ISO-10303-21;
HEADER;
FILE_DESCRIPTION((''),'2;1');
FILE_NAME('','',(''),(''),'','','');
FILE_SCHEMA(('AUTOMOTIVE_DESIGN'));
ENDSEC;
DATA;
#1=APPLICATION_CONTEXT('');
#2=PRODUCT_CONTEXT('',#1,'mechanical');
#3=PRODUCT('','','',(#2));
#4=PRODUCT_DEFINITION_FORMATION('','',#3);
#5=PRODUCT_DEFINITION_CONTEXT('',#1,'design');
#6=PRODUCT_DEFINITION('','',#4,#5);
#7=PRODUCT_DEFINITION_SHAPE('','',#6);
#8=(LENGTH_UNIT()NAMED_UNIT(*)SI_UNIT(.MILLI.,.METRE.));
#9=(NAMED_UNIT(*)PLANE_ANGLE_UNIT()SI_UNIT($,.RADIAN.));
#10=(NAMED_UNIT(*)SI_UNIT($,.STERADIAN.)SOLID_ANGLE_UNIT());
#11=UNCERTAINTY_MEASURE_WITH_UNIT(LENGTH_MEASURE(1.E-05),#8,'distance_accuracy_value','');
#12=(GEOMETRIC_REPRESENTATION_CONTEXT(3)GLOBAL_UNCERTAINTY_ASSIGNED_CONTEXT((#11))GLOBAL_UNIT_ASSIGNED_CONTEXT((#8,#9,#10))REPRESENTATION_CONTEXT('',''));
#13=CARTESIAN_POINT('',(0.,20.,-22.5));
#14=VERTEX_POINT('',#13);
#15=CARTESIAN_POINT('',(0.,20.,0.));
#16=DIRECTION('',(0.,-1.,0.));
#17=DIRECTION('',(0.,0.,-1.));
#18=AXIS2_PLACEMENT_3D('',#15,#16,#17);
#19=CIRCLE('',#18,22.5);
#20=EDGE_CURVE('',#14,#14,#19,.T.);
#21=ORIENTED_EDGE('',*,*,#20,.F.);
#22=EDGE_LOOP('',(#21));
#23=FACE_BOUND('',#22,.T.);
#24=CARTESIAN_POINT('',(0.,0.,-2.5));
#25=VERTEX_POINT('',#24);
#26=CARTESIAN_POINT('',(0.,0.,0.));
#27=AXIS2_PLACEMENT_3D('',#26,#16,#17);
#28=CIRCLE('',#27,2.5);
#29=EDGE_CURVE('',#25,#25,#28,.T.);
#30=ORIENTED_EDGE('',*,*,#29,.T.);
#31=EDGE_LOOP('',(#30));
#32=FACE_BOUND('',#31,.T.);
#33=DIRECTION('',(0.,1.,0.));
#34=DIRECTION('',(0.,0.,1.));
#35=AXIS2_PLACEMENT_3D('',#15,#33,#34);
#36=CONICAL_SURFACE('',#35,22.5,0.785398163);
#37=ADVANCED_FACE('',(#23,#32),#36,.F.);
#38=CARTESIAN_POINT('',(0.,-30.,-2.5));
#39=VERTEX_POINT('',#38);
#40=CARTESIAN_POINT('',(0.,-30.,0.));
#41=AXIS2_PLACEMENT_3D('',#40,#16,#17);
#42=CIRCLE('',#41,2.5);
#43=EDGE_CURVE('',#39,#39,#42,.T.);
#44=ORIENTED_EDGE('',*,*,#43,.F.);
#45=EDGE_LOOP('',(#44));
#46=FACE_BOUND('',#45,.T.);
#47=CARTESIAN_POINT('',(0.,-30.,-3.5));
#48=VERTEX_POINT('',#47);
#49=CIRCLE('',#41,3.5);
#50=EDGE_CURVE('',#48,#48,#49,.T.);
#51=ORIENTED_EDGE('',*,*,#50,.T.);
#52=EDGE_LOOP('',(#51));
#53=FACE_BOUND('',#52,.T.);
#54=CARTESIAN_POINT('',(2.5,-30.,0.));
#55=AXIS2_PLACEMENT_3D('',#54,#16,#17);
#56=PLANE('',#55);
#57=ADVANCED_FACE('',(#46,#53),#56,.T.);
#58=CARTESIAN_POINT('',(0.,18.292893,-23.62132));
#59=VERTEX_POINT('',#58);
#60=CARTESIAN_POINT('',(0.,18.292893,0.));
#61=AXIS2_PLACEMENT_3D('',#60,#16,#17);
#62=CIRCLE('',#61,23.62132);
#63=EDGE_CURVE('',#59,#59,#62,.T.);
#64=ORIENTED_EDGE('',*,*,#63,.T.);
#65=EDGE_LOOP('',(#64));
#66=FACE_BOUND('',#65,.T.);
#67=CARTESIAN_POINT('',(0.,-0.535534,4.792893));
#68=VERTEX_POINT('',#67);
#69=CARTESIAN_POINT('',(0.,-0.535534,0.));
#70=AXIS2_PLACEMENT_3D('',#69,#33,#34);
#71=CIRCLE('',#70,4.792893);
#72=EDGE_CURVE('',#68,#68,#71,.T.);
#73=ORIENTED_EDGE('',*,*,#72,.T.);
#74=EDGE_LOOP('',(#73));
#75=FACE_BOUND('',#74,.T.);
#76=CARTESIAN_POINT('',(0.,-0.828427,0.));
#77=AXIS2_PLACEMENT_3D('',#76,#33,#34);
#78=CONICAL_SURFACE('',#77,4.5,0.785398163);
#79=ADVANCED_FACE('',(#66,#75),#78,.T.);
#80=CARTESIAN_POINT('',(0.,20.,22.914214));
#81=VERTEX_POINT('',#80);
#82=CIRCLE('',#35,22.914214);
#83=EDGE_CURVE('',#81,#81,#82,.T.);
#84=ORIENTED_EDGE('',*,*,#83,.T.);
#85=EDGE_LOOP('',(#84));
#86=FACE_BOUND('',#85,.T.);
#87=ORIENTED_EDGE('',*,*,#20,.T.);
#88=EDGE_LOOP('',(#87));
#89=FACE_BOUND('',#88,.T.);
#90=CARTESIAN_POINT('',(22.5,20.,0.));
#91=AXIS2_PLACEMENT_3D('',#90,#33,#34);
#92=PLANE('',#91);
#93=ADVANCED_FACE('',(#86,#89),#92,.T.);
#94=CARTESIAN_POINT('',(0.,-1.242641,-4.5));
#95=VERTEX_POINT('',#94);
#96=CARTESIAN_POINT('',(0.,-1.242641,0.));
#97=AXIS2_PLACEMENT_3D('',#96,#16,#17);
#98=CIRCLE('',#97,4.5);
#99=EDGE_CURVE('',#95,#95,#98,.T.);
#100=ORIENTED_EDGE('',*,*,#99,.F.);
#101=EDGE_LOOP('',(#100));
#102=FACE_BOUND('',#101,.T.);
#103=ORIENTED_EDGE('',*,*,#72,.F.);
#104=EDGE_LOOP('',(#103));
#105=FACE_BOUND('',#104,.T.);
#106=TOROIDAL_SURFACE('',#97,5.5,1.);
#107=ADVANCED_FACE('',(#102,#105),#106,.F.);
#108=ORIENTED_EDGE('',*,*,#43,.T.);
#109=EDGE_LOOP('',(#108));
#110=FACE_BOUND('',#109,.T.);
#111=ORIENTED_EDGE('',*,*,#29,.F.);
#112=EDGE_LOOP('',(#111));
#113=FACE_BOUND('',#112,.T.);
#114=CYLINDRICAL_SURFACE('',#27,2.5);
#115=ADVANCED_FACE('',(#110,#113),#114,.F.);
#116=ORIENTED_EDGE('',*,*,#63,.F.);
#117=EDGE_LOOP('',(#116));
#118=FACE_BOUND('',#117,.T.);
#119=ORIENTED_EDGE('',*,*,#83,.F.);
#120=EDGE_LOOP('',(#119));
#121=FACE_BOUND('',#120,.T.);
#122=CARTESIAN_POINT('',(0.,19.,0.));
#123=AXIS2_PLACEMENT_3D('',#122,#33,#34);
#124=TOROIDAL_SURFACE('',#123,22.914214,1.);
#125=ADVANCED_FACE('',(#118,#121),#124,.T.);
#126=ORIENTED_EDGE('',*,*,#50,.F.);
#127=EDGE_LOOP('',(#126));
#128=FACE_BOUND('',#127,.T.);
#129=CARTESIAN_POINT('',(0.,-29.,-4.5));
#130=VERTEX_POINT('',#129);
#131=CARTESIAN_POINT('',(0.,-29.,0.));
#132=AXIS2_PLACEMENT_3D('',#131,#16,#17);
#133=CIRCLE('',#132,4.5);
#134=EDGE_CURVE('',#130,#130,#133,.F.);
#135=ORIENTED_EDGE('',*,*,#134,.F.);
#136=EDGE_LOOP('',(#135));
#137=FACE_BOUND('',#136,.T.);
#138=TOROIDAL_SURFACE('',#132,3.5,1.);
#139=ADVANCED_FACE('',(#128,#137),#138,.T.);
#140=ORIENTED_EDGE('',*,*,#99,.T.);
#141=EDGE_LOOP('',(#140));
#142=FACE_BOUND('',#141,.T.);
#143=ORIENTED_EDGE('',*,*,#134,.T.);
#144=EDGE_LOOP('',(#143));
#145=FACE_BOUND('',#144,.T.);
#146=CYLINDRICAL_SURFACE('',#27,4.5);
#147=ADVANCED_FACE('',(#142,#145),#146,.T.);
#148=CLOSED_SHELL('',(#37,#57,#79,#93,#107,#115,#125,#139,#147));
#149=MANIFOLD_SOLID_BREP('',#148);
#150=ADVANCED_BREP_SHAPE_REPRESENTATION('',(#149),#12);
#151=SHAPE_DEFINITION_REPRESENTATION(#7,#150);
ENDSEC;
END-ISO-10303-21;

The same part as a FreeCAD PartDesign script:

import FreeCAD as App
import Part
import Sketcher
Q = App.Units.Quantity


def edges_at(feature, points):
    """Names of the edges that pass closest to the given points."""
    edges = feature.Shape.Edges
    near = lambda p: min(range(len(edges)), key=lambda i: edges[i].distToShape(Part.Vertex(*p))[0])
    return sorted({f"Edge{near(p) + 1}" for p in points})

doc = App.newDocument("Part")
params = doc.addObject("Spreadsheet::Sheet", "Params")
for row, (alias, value) in enumerate([
    ("sketch1_width", "2 mm"),
    ("sketch1_height", "30 mm"),
    ("revolution_angle", "360 deg"),
    ("fillet_radius", "1 mm"),
], start=1):
    params.set(f"A{row}", alias)
    params.set(f"B{row}", "=" + value)
    params.setAlias(f"B{row}", alias)

body = doc.addObject("PartDesign::Body", "Body")

sketch1 = body.newObject("Sketcher::SketchObject", "Sketch")
sketch1.AttachmentSupport = (doc.getObject("XY_Plane"), [""])
sketch1.MapMode = "FlatFace"
sketch1.addGeometry(Part.LineSegment(App.Vector(2.5, 0, 0), App.Vector(2.5, -30, 0)), False)
sketch1.addGeometry(Part.LineSegment(App.Vector(2.5, -30, 0), App.Vector(4.5, -30, 0)), False)
sketch1.addGeometry(Part.LineSegment(App.Vector(4.5, -30, 0), App.Vector(4.5, -0.8, 0)), False)
sketch1.addGeometry(Part.LineSegment(App.Vector(4.5, -0.8, 0), App.Vector(25.3, 20, 0)), False)
sketch1.addGeometry(Part.LineSegment(App.Vector(25.3, 20, 0), App.Vector(22.5, 20, 0)), False)
sketch1.addGeometry(Part.LineSegment(App.Vector(22.5, 20, 0), App.Vector(2.5, 0, 0)), False)
sketch1.addConstraint(Sketcher.Constraint("Coincident", 0, 2, 1, 1))
sketch1.addConstraint(Sketcher.Constraint("Coincident", 1, 2, 2, 1))
sketch1.addConstraint(Sketcher.Constraint("Coincident", 2, 2, 3, 1))
sketch1.addConstraint(Sketcher.Constraint("Coincident", 3, 2, 4, 1))
sketch1.addConstraint(Sketcher.Constraint("Coincident", 4, 2, 5, 1))
sketch1.addConstraint(Sketcher.Constraint("Coincident", 5, 2, 0, 1))
sketch1.addConstraint(Sketcher.Constraint("Vertical", 0))
sketch1.addConstraint(Sketcher.Constraint("Horizontal", 1))
sketch1.addConstraint(Sketcher.Constraint("Vertical", 2))
sketch1.addConstraint(Sketcher.Constraint("Horizontal", 4))
sketch1.addConstraint(Sketcher.Constraint("PointOnObject", 5, 2, -1))
sketch1.addConstraint(Sketcher.Constraint("Parallel", 3, 5))
sketch1.addConstraint(Sketcher.Constraint("DistanceX", 1, 1, 1, 2, Q("2 mm")))
sketch1.addConstraint(Sketcher.Constraint("DistanceY", 0, 2, 0, 1, Q("30 mm")))
sketch1.addConstraint(Sketcher.Constraint("Angle", 3, Q("45 deg")))
sketch1.addConstraint(Sketcher.Constraint("DistanceY", -1, 1, 3, 2, Q("20 mm")))
sketch1.addConstraint(Sketcher.Constraint("DistanceX", -1, 1, 0, 2, Q("2.5 mm")))
sketch1.addConstraint(Sketcher.Constraint("DistanceX", 4, 2, 4, 1, Q("2.828427 mm")))
sketch1.setExpression("Constraints[12]", "Params.sketch1_width")
sketch1.setExpression("Constraints[13]", "Params.sketch1_height")
revolution = body.newObject("PartDesign::Revolution", "Revolution")
revolution.Profile = sketch1
revolution.ReferenceAxis = (sketch1, ["V_Axis"])
revolution.setExpression("Angle", "Params.revolution_angle")
doc.recompute()

fillet = body.newObject("PartDesign::Fillet", "Fillet")
fillet.Base = (revolution, edges_at(revolution, [(-4.5, -30, 0), (-4.5, -0.828, 0), (-25.328, 20, 0)]))
fillet.setExpression("Radius", "Params.fillet_radius")

doc.recompute()
